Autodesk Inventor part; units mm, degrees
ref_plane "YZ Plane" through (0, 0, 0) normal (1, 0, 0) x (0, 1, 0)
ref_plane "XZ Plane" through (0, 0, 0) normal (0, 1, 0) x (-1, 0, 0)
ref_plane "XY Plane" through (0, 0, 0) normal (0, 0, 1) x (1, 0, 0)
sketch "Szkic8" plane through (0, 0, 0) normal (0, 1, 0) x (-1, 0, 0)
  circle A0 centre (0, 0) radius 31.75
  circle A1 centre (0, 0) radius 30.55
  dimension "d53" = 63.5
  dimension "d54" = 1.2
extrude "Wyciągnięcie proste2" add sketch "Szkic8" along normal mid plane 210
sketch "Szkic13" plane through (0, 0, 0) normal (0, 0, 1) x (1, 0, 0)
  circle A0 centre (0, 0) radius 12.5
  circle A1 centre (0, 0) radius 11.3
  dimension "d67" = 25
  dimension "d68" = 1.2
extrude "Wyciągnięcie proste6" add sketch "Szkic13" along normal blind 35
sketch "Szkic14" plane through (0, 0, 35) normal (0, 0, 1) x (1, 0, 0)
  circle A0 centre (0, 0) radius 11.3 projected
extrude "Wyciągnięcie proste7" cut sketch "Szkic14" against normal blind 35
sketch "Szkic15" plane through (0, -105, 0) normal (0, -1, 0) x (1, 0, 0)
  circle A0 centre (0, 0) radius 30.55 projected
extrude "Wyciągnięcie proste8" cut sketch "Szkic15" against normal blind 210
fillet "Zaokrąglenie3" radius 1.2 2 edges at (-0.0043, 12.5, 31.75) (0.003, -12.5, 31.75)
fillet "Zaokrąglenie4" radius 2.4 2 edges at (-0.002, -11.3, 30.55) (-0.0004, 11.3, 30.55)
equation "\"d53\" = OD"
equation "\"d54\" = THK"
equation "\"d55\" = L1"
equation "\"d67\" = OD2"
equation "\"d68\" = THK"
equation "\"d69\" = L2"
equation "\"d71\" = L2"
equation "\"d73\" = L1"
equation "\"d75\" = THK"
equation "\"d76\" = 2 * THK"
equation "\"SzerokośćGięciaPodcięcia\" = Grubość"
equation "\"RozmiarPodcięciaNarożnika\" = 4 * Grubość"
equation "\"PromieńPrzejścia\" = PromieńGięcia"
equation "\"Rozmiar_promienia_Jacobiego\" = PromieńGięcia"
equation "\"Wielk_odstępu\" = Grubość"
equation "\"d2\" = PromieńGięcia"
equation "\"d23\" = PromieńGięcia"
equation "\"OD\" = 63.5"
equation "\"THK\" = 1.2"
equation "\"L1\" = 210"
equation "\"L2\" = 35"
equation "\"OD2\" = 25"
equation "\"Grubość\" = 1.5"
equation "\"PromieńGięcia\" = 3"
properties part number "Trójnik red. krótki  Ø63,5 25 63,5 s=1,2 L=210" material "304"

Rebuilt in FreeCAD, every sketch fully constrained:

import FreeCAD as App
import Part
import Sketcher
from FreeCAD import Vector
Q = App.Units.Quantity


def edges_at(feature, points):
    """Names of the edges that pass closest to the given points."""
    edges = feature.Shape.Edges
    near = lambda p: min(range(len(edges)), key=lambda i: edges[i].distToShape(Part.Vertex(*p))[0])
    return sorted({f"Edge{near(p) + 1}" for p in points})

doc = App.newDocument("Part")
body = doc.addObject("PartDesign::Body", "Body")

sketch1 = body.newObject("Sketcher::SketchObject", "Sketch")
sketch1.AttachmentSupport = (doc.getObject("XZ_Plane"), [""])
sketch1.MapMode = "FlatFace"
sketch1.addGeometry(Part.Circle(Vector(0, 0, 0), Vector(0, 0, 1), 32), False)
sketch1.addGeometry(Part.Circle(Vector(0, 0, 0), Vector(0, 0, 1), 31), False)
sketch1.addConstraint(Sketcher.Constraint("Coincident", 0, 3, -1, 1))
sketch1.addConstraint(Sketcher.Constraint("Coincident", 1, 3, -1, 1))
sketch1.addConstraint(Sketcher.Constraint("Diameter", 0, Q("63.5 mm")))
sketch1.addConstraint(Sketcher.Constraint("Diameter", 1, Q("61.1 mm")))
pad1 = body.newObject("PartDesign::Pad", "Pad")
pad1.Profile = sketch1
pad1.Length = 210
pad1.Midplane = True

sketch2 = body.newObject("Sketcher::SketchObject", "Sketch001")
sketch2.AttachmentSupport = (doc.getObject("XY_Plane"), [""])
sketch2.MapMode = "FlatFace"
sketch2.addGeometry(Part.Circle(Vector(0, 0, 0), Vector(0, 0, 1), 12), False)
sketch2.addGeometry(Part.Circle(Vector(0, 0, 0), Vector(0, 0, 1), 11), False)
sketch2.addConstraint(Sketcher.Constraint("Coincident", 0, 3, -1, 1))
sketch2.addConstraint(Sketcher.Constraint("Coincident", 1, 3, -1, 1))
sketch2.addConstraint(Sketcher.Constraint("Diameter", 0, Q("25 mm")))
sketch2.addConstraint(Sketcher.Constraint("Diameter", 1, Q("22.6 mm")))
pad2 = body.newObject("PartDesign::Pad", "Pad001")
pad2.Profile = sketch2
pad2.Length = 35

sketch3 = body.newObject("Sketcher::SketchObject", "Sketch002")
sketch3.AttachmentSupport = (doc.getObject("XY_Plane"), [""])
sketch3.MapMode = "FlatFace"
sketch3.AttachmentOffset = App.Placement(Vector(0, 0, 35), App.Rotation())
sketch3.addGeometry(Part.Circle(Vector(0, 0, 0), Vector(0, 0, 1), 11), False)
sketch3.addConstraint(Sketcher.Constraint("Coincident", 0, 3, -1, 1))
sketch3.addConstraint(Sketcher.Constraint("Diameter", 0, Q("22.6 mm")))
pocket1 = body.newObject("PartDesign::Pocket", "Pocket")
pocket1.Profile = sketch3
pocket1.Length = 35

sketch4 = body.newObject("Sketcher::SketchObject", "Sketch003")
sketch4.AttachmentSupport = (doc.getObject("XZ_Plane"), [""])
sketch4.MapMode = "FlatFace"
sketch4.AttachmentOffset = App.Placement(Vector(0, 0, 105), App.Rotation())
sketch4.addGeometry(Part.Circle(Vector(0, 0, 0), Vector(0, 0, 1), 31), False)
sketch4.addConstraint(Sketcher.Constraint("Coincident", 0, 3, -1, 1))
sketch4.addConstraint(Sketcher.Constraint("Diameter", 0, Q("61.1 mm")))
pocket2 = body.newObject("PartDesign::Pocket", "Pocket001")
pocket2.Profile = sketch4
pocket2.Length = 210
doc.recompute()

fillet = body.newObject("PartDesign::Fillet", "Fillet")
fillet.Base = (pocket2, edges_at(pocket2, [(-0.004, 12.5, 31.75), (0.003, -12.5, 31.75)]))
fillet.Radius = 1.2
doc.recompute()

fillet2 = body.newObject("PartDesign::Fillet", "Fillet001")
fillet2.Base = (fillet, edges_at(fillet, [(-0.002, -11.3, 30.55), (0, 11.3, 30.55)]))
fillet2.Radius = 2.4

doc.recompute()
